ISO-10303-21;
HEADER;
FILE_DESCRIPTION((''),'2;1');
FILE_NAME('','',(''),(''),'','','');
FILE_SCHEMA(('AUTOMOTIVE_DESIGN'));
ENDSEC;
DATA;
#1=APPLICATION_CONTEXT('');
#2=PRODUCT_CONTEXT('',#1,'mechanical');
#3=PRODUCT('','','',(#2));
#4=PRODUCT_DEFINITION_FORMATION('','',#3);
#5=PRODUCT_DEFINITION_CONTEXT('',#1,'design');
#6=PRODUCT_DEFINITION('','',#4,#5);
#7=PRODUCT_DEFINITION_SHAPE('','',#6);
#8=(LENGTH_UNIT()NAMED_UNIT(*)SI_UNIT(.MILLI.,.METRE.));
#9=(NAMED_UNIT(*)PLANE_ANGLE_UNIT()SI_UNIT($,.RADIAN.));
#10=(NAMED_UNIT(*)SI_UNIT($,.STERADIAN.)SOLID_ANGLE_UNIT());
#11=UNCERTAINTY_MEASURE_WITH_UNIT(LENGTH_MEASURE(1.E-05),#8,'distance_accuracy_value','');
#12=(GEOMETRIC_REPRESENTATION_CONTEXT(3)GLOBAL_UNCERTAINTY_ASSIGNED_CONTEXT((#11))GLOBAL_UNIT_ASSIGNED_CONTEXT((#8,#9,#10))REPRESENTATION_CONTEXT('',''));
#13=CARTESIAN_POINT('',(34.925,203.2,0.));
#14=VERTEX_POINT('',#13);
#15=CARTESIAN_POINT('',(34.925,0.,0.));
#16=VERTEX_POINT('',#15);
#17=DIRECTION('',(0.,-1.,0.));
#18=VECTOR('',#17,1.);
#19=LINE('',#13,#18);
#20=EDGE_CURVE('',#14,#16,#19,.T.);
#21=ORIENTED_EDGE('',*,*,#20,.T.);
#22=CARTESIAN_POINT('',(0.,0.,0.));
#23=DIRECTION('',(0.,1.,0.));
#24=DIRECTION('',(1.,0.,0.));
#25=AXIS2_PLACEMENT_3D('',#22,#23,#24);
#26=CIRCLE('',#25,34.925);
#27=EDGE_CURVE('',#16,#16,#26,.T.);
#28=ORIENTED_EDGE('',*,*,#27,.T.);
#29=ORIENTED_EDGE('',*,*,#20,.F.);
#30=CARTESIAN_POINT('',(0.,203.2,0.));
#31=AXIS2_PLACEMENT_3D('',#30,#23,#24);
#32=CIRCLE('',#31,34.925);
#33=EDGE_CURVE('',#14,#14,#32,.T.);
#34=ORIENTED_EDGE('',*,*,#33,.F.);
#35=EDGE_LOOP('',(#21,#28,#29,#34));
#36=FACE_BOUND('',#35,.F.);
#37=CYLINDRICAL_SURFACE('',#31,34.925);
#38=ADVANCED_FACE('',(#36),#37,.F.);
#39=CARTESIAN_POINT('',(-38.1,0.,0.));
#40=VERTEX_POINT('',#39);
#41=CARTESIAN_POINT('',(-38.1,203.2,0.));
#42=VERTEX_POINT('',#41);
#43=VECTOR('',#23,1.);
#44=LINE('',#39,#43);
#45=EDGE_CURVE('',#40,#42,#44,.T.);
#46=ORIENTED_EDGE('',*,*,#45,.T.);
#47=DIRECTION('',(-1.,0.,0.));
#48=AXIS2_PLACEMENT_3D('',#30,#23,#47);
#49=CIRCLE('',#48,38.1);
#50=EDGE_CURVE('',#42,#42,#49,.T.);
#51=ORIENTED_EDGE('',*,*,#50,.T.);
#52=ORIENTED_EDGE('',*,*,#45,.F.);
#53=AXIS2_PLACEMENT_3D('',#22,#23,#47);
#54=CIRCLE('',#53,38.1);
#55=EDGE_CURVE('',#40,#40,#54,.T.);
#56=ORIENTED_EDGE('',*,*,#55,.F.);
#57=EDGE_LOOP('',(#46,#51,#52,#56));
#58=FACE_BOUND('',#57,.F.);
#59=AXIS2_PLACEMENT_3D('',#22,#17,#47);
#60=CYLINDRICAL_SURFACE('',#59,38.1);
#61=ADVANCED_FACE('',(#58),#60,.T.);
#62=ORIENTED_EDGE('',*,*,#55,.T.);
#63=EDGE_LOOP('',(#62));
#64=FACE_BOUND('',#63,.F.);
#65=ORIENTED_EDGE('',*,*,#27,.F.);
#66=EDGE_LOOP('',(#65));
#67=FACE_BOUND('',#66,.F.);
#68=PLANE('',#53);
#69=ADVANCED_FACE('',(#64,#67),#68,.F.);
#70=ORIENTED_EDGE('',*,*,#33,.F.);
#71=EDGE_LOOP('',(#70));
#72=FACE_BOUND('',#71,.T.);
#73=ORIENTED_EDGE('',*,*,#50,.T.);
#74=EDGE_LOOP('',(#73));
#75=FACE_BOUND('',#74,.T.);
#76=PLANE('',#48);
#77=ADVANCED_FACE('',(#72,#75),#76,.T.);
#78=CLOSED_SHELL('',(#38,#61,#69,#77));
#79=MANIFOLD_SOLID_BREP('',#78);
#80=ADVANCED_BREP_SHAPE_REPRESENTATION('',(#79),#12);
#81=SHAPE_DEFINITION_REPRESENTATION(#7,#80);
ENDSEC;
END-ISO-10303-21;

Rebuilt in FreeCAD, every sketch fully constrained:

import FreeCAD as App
import Part
import Sketcher

V = App.Vector
Q = App.Units.Quantity

doc = App.newDocument("Part")
body = doc.addObject("PartDesign::Body", "Body")

# Sketch on XZ plane
sketch1 = body.newObject("Sketcher::SketchObject", "Sketch")
sketch1.AttachmentSupport = (doc.getObject("XZ_Plane"), [""])
sketch1.MapMode = "FlatFace"
sketch1.addGeometry(Part.Circle(V(0, 0, 0), V(0, 0, 1), 38), False)
sketch1.addConstraint(Sketcher.Constraint("Coincident", 0, 3, -1, 1))
sketch1.addConstraint(Sketcher.Constraint("Diameter", 0, Q("3 in")))
pad1 = body.newObject("PartDesign::Pad", "Pad")
pad1.Profile = sketch1
pad1.Length = Q("8 in")
pad1.Reversed = True

# Sketch on XZ plane
sketch2 = body.newObject("Sketcher::SketchObject", "Sketch001")
sketch2.AttachmentSupport = (doc.getObject("XZ_Plane"), [""])
sketch2.MapMode = "FlatFace"
sketch2.AttachmentOffset = App.Placement(V(0, 0, -8 * 25.4), App.Rotation())
sketch2.addGeometry(Part.Circle(V(0, 0, 0), V(0, 0, 1), 35), False)
sketch2.addConstraint(Sketcher.Constraint("Coincident", 0, 3, -1, 1))
sketch2.addConstraint(Sketcher.Constraint("Diameter", 0, Q("2.75 in")))
pocket1 = body.newObject("PartDesign::Pocket", "Pocket")
pocket1.Profile = sketch2
pocket1.Length = Q("8 in")
pocket1.Reversed = True

doc.recompute()
